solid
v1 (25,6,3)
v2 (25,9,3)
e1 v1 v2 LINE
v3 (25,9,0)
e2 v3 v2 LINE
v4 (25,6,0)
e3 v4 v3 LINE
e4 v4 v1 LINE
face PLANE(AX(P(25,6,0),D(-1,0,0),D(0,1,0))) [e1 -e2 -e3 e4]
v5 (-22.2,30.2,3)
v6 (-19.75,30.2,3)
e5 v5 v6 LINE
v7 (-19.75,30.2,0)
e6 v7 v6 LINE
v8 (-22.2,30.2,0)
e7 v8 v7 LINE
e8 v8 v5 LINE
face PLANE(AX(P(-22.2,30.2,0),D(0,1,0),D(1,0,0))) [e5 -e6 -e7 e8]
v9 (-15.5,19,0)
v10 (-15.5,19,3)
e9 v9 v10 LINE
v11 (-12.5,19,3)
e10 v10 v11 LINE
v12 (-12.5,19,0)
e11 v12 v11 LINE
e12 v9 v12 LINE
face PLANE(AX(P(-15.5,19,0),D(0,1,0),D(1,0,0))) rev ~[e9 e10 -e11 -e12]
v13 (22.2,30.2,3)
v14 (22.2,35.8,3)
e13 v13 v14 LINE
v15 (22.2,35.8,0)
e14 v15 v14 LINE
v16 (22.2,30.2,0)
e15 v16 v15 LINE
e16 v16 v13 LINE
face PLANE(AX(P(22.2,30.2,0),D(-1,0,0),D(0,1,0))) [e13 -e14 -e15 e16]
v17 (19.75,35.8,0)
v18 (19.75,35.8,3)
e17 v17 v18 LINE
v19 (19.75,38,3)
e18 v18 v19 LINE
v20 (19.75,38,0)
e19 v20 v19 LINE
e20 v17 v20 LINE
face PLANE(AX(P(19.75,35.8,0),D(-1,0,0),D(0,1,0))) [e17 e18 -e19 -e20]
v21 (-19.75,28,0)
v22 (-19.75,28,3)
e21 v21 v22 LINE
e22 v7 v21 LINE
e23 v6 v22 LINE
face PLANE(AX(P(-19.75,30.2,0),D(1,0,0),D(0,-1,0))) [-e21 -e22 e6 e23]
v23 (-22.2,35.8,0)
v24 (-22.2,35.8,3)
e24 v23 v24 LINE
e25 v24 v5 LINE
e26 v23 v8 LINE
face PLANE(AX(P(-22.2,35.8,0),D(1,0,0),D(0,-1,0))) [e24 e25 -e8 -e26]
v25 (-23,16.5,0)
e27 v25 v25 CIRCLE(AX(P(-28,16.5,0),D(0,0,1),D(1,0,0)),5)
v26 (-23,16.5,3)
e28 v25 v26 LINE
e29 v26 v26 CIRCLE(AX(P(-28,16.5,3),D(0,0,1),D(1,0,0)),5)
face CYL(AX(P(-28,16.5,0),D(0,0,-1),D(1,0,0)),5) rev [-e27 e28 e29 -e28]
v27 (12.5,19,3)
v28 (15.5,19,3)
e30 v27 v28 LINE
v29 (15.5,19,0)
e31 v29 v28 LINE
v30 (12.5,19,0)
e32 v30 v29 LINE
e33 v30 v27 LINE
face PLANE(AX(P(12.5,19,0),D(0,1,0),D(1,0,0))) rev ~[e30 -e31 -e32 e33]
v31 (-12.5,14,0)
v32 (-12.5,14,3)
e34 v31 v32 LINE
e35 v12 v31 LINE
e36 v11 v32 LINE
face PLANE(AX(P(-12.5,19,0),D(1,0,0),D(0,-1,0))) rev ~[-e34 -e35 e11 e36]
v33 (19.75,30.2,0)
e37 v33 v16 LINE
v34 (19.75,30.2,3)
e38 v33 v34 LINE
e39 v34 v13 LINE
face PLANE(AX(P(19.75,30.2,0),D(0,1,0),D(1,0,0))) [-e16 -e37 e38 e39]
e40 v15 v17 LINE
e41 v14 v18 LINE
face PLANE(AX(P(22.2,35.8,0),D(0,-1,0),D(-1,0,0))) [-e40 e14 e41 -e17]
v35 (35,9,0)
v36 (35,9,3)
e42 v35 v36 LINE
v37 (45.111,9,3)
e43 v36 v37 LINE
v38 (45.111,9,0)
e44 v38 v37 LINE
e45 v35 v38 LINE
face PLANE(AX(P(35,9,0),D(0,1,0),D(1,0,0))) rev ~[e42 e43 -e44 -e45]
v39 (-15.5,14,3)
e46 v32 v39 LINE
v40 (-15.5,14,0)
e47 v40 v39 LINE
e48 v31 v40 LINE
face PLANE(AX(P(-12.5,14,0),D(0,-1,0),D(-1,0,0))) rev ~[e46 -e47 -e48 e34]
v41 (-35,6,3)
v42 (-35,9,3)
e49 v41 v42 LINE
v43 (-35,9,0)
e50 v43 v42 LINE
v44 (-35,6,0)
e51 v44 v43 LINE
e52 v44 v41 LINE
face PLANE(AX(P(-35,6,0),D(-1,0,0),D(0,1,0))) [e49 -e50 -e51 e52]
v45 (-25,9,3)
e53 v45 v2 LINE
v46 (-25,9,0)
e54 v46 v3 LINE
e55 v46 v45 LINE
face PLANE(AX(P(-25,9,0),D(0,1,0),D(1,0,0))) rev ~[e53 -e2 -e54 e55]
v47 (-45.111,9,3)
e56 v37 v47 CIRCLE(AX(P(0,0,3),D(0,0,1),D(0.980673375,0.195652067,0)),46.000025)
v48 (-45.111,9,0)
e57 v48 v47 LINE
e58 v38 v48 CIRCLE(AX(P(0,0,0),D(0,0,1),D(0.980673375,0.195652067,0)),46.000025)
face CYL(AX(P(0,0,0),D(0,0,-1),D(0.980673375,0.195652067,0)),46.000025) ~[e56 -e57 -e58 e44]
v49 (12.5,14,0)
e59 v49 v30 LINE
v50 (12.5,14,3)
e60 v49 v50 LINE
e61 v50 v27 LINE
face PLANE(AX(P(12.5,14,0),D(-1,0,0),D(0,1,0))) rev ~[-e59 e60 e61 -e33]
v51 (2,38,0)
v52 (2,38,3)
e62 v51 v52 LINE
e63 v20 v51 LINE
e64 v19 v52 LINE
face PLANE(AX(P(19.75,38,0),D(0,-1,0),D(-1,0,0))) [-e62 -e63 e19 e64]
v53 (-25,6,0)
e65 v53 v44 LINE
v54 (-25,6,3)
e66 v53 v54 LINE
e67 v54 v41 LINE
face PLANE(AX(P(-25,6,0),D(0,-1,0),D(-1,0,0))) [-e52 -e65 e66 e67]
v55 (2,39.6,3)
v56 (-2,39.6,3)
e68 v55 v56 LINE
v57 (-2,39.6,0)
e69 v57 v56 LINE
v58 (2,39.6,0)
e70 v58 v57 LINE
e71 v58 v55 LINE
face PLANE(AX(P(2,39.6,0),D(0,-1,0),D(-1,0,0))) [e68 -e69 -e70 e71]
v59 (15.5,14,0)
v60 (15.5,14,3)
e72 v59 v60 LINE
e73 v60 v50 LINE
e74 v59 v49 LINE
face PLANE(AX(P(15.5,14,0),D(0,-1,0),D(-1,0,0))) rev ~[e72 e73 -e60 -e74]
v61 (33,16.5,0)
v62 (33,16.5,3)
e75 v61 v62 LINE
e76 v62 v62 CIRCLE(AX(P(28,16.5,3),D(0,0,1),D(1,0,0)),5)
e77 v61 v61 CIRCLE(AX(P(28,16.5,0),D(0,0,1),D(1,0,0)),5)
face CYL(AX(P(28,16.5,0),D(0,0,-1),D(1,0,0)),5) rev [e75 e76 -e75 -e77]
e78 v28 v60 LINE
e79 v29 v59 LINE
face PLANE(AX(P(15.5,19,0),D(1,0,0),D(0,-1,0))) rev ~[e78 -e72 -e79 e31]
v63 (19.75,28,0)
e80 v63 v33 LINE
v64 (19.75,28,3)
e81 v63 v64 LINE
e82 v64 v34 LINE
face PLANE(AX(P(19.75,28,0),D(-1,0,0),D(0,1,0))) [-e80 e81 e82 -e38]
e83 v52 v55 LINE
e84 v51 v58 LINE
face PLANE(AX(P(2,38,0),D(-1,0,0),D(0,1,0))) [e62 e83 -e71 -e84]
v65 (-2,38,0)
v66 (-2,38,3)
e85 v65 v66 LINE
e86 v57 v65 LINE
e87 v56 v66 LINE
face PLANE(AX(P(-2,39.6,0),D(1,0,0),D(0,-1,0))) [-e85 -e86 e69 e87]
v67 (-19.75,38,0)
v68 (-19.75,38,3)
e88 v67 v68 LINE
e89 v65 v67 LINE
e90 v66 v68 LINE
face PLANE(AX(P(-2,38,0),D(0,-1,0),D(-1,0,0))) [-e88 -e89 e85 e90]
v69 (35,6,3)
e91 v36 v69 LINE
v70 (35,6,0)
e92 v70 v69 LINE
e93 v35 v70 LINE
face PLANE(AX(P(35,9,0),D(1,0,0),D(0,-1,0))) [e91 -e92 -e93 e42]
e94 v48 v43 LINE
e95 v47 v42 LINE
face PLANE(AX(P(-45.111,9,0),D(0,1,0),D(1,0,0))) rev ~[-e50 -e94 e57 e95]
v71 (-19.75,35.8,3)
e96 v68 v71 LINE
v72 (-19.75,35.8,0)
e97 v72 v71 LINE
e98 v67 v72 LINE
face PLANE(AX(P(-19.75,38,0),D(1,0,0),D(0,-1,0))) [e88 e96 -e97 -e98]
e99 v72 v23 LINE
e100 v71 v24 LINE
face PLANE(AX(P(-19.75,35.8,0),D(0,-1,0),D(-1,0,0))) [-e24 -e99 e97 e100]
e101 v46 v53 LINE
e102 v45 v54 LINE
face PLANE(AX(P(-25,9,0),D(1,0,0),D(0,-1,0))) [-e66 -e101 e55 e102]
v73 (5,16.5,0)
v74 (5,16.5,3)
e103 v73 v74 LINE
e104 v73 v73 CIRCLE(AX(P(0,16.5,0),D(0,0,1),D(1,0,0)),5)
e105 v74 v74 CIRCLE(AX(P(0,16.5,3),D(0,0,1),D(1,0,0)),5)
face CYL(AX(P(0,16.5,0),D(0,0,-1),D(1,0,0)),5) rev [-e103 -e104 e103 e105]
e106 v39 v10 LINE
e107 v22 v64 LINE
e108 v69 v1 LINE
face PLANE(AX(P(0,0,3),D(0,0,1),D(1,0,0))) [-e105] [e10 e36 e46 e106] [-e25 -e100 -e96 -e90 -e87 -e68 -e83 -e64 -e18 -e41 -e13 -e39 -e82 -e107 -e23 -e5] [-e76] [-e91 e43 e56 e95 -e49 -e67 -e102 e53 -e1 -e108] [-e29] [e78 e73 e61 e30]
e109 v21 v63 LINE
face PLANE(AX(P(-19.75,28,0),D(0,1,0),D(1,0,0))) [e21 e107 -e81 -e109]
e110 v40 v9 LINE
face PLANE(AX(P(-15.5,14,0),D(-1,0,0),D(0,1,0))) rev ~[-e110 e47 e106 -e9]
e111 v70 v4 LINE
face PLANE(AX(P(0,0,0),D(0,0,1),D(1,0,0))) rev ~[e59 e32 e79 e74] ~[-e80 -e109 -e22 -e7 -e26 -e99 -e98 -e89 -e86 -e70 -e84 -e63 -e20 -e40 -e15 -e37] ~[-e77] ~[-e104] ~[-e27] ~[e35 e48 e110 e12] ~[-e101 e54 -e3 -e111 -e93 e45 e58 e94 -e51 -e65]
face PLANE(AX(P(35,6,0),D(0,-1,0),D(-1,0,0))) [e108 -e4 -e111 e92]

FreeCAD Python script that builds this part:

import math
import FreeCAD as App
import Part
import Sketcher
Q = App.Units.Quantity


def add_polygon(sketch, points):
    """Adds a closed chain of lines whose ends are joined by coincident constraints."""
    first, n = sketch.GeometryCount, len(points)
    for a, b in zip(points, points[1:] + points[:1]):
        sketch.addGeometry(Part.LineSegment(App.Vector(*a, 0), App.Vector(*b, 0)), False)
    for i in range(n):
        sketch.addConstraint(Sketcher.Constraint("Coincident", first + i, 2, first + (i + 1) % n, 1))

doc = App.newDocument("Part")
body = doc.addObject("PartDesign::Body", "Body")

# Sketch on XY plane
sketch1 = body.newObject("Sketcher::SketchObject", "Sketch")
sketch1.AttachmentSupport = (doc.getObject("XY_Plane"), [""])
sketch1.MapMode = "FlatFace"
sketch1.addGeometry(Part.LineSegment(App.Vector(35, 9, 0), App.Vector(45.111, 9, 0)), False)  # 0
sketch1.addGeometry(Part.ArcOfCircle(Part.Circle(App.Vector(0, 0, 0), App.Vector(0, 0, 1), 46.000025), math.radians(11.282818), math.radians(168.717182)), False)  # 1
sketch1.addGeometry(Part.LineSegment(App.Vector(-45.111, 9, 0), App.Vector(-35, 9, 0)), False)  # 2
sketch1.addGeometry(Part.LineSegment(App.Vector(-35, 9, 0), App.Vector(-35, 6, 0)), False)  # 3
sketch1.addGeometry(Part.LineSegment(App.Vector(-35, 6, 0), App.Vector(-25, 6, 0)), False)  # 4
sketch1.addGeometry(Part.LineSegment(App.Vector(-25, 6, 0), App.Vector(-25, 9, 0)), False)  # 5
sketch1.addGeometry(Part.LineSegment(App.Vector(-25, 9, 0), App.Vector(25, 9, 0)), False)  # 6
sketch1.addGeometry(Part.LineSegment(App.Vector(25, 9, 0), App.Vector(25, 6, 0)), False)  # 7
sketch1.addGeometry(Part.LineSegment(App.Vector(25, 6, 0), App.Vector(35, 6, 0)), False)  # 8
sketch1.addGeometry(Part.LineSegment(App.Vector(35, 6, 0), App.Vector(35, 9, 0)), False)  # 9
sketch1.addGeometry(Part.Circle(App.Vector(-28, 16.5, 0), App.Vector(0, 0, 1), 5), False)  # 10
add_polygon(sketch1, [(-15.5, 14), (-15.5, 19), (-12.5, 19), (-12.5, 14)])  # lines 11-14
sketch1.addGeometry(Part.Circle(App.Vector(0, 16.5, 0), App.Vector(0, 0, 1), 5), False)  # 15
add_polygon(sketch1, [(12.5, 14), (12.5, 19), (15.5, 19), (15.5, 14)])  # lines 16-19
sketch1.addGeometry(Part.Circle(App.Vector(28, 16.5, 0), App.Vector(0, 0, 1), 5), False)  # 20
add_polygon(sketch1, [(-22.2, 30.2), (-22.2, 35.8), (-19.75, 35.8), (-19.75, 38), (-2, 38), (-2, 39.6), (2, 39.6), (2, 38), (19.75, 38), (19.75, 35.8), (22.2, 35.8), (22.2, 30.2), (19.75, 30.2), (19.75, 28), (-19.75, 28), (-19.75, 30.2)])  # lines 21-36
sketch1.addConstraint(Sketcher.Constraint("Coincident", 0, 2, 1, 1))
sketch1.addConstraint(Sketcher.Constraint("Coincident", 1, 2, 2, 1))
sketch1.addConstraint(Sketcher.Constraint("Coincident", 2, 2, 3, 1))
sketch1.addConstraint(Sketcher.Constraint("Coincident", 3, 2, 4, 1))
sketch1.addConstraint(Sketcher.Constraint("Coincident", 4, 2, 5, 1))
sketch1.addConstraint(Sketcher.Constraint("Coincident", 5, 2, 6, 1))
sketch1.addConstraint(Sketcher.Constraint("Coincident", 6, 2, 7, 1))
sketch1.addConstraint(Sketcher.Constraint("Coincident", 7, 2, 8, 1))
sketch1.addConstraint(Sketcher.Constraint("Coincident", 8, 2, 9, 1))
sketch1.addConstraint(Sketcher.Constraint("Coincident", 9, 2, 0, 1))
sketch1.addConstraint(Sketcher.Constraint("Horizontal", 0))
sketch1.addConstraint(Sketcher.Constraint("Horizontal", 2))
sketch1.addConstraint(Sketcher.Constraint("Vertical", 3))
sketch1.addConstraint(Sketcher.Constraint("Horizontal", 4))
sketch1.addConstraint(Sketcher.Constraint("Vertical", 5))
sketch1.addConstraint(Sketcher.Constraint("Horizontal", 6))
sketch1.addConstraint(Sketcher.Constraint("Vertical", 7))
sketch1.addConstraint(Sketcher.Constraint("Horizontal", 8))
sketch1.addConstraint(Sketcher.Constraint("Vertical", 9))
sketch1.addConstraint(Sketcher.Constraint("Vertical", 11))
sketch1.addConstraint(Sketcher.Constraint("Horizontal", 12))
sketch1.addConstraint(Sketcher.Constraint("Vertical", 13))
sketch1.addConstraint(Sketcher.Constraint("Horizontal", 14))
sketch1.addConstraint(Sketcher.Constraint("Vertical", 16))
sketch1.addConstraint(Sketcher.Constraint("Horizontal", 17))
sketch1.addConstraint(Sketcher.Constraint("Vertical", 18))
sketch1.addConstraint(Sketcher.Constraint("Horizontal", 19))
sketch1.addConstraint(Sketcher.Constraint("Vertical", 21))
sketch1.addConstraint(Sketcher.Constraint("Horizontal", 22))
sketch1.addConstraint(Sketcher.Constraint("Vertical", 23))
sketch1.addConstraint(Sketcher.Constraint("Horizontal", 24))
sketch1.addConstraint(Sketcher.Constraint("Vertical", 25))
sketch1.addConstraint(Sketcher.Constraint("Horizontal", 26))
sketch1.addConstraint(Sketcher.Constraint("Vertical", 27))
sketch1.addConstraint(Sketcher.Constraint("Horizontal", 28))
sketch1.addConstraint(Sketcher.Constraint("Vertical", 29))
sketch1.addConstraint(Sketcher.Constraint("Horizontal", 30))
sketch1.addConstraint(Sketcher.Constraint("Vertical", 31))
sketch1.addConstraint(Sketcher.Constraint("Horizontal", 32))
sketch1.addConstraint(Sketcher.Constraint("Vertical", 33))
sketch1.addConstraint(Sketcher.Constraint("Horizontal", 34))
sketch1.addConstraint(Sketcher.Constraint("Vertical", 35))
sketch1.addConstraint(Sketcher.Constraint("Horizontal", 36))
sketch1.addConstraint(Sketcher.Constraint("Coincident", 1, 3, -1, 1))
sketch1.addConstraint(Sketcher.Constraint("Equal", 10, 15))
sketch1.addConstraint(Sketcher.Constraint("Equal", 15, 20))
sketch1.addConstraint(Sketcher.Constraint("Symmetric", 10, 3, 20, 3, -2))
sketch1.addConstraint(Sketcher.Constraint("Symmetric", 4, 2, 7, 2, -2))
sketch1.addConstraint(Sketcher.Constraint("Symmetric", 2, 2, 9, 2, -2))
sketch1.addConstraint(Sketcher.Constraint("Symmetric", 12, 2, 16, 2, -2))
sketch1.addConstraint(Sketcher.Constraint("Symmetric", 14, 2, 18, 2, -2))
sketch1.addConstraint(Sketcher.Constraint("Symmetric", 24, 2, 27, 2, -2))
sketch1.addConstraint(Sketcher.Constraint("Symmetric", 22, 2, 29, 2, -2))
sketch1.addConstraint(Sketcher.Constraint("Symmetric", 32, 2, 35, 2, -2))
sketch1.addConstraint(Sketcher.Constraint("PointOnObject", 15, 3, -2))
sketch1.addConstraint(Sketcher.Constraint("Horizontal", 10, 3, 15, 3))
sketch1.addConstraint(Sketcher.Constraint("Horizontal", 2, 2, 5, 2))
sketch1.addConstraint(Sketcher.Constraint("Vertical", 29, 2, 32, 2))
sketch1.addConstraint(Sketcher.Constraint("Equal", 22, 30))
sketch1.addConstraint(Sketcher.Constraint("Equal", 19, 3))
sketch1.addConstraint(Sketcher.Constraint("Equal", 29, 33))
sketch1.addConstraint(Sketcher.Constraint("Diameter", 10, Q("10 mm")))
sketch1.addConstraint(Sketcher.Constraint("Radius", 1, Q("46 mm")))
sketch1.addConstraint(Sketcher.Constraint("DistanceX", 4, 1, 4, 2, Q("10 mm")))
sketch1.addConstraint(Sketcher.Constraint("DistanceX", 6, 1, 6, 2, Q("50 mm")))
sketch1.addConstraint(Sketcher.Constraint("DistanceX", 12, 1, 12, 2, Q("3 mm")))
sketch1.addConstraint(Sketcher.Constraint("DistanceX", 26, 1, 26, 2, Q("4 mm")))
sketch1.addConstraint(Sketcher.Constraint("DistanceY", 11, 1, 11, 2, Q("5 mm")))
sketch1.addConstraint(Sketcher.Constraint("DistanceX", 34, 2, 34, 1, Q("39.5 mm")))
sketch1.addConstraint(Sketcher.Constraint("DistanceY", 21, 1, 21, 2, Q("5.6 mm")))
sketch1.addConstraint(Sketcher.Constraint("DistanceY", 23, 1, 23, 2, Q("2.2 mm")))
sketch1.addConstraint(Sketcher.Constraint("DistanceX", 10, 3, -1, 1, Q("28 mm")))
sketch1.addConstraint(Sketcher.Constraint("DistanceY", -1, 1, 33, 2, Q("28 mm")))
sketch1.addConstraint(Sketcher.Constraint("DistanceY", 5, 2, 11, 2, Q("10 mm")))
sketch1.addConstraint(Sketcher.Constraint("DistanceX", 22, 1, 22, 2, Q("2.45 mm")))
sketch1.addConstraint(Sketcher.Constraint("DistanceX", 12, 2, -1, 1, Q("12.5 mm")))
sketch1.addConstraint(Sketcher.Constraint("DistanceY", 25, 1, 25, 2, Q("1.6 mm")))
sketch1.addConstraint(Sketcher.Constraint("DistanceY", -1, 1, 0, 2, Q("9 mm")))
sketch1.addConstraint(Sketcher.Constraint("DistanceY", -1, 1, 10, 3, Q("16.5 mm")))
pad1 = body.newObject("PartDesign::Pad", "Pad")
pad1.Profile = sketch1
pad1.Length = 3

doc.recompute()
